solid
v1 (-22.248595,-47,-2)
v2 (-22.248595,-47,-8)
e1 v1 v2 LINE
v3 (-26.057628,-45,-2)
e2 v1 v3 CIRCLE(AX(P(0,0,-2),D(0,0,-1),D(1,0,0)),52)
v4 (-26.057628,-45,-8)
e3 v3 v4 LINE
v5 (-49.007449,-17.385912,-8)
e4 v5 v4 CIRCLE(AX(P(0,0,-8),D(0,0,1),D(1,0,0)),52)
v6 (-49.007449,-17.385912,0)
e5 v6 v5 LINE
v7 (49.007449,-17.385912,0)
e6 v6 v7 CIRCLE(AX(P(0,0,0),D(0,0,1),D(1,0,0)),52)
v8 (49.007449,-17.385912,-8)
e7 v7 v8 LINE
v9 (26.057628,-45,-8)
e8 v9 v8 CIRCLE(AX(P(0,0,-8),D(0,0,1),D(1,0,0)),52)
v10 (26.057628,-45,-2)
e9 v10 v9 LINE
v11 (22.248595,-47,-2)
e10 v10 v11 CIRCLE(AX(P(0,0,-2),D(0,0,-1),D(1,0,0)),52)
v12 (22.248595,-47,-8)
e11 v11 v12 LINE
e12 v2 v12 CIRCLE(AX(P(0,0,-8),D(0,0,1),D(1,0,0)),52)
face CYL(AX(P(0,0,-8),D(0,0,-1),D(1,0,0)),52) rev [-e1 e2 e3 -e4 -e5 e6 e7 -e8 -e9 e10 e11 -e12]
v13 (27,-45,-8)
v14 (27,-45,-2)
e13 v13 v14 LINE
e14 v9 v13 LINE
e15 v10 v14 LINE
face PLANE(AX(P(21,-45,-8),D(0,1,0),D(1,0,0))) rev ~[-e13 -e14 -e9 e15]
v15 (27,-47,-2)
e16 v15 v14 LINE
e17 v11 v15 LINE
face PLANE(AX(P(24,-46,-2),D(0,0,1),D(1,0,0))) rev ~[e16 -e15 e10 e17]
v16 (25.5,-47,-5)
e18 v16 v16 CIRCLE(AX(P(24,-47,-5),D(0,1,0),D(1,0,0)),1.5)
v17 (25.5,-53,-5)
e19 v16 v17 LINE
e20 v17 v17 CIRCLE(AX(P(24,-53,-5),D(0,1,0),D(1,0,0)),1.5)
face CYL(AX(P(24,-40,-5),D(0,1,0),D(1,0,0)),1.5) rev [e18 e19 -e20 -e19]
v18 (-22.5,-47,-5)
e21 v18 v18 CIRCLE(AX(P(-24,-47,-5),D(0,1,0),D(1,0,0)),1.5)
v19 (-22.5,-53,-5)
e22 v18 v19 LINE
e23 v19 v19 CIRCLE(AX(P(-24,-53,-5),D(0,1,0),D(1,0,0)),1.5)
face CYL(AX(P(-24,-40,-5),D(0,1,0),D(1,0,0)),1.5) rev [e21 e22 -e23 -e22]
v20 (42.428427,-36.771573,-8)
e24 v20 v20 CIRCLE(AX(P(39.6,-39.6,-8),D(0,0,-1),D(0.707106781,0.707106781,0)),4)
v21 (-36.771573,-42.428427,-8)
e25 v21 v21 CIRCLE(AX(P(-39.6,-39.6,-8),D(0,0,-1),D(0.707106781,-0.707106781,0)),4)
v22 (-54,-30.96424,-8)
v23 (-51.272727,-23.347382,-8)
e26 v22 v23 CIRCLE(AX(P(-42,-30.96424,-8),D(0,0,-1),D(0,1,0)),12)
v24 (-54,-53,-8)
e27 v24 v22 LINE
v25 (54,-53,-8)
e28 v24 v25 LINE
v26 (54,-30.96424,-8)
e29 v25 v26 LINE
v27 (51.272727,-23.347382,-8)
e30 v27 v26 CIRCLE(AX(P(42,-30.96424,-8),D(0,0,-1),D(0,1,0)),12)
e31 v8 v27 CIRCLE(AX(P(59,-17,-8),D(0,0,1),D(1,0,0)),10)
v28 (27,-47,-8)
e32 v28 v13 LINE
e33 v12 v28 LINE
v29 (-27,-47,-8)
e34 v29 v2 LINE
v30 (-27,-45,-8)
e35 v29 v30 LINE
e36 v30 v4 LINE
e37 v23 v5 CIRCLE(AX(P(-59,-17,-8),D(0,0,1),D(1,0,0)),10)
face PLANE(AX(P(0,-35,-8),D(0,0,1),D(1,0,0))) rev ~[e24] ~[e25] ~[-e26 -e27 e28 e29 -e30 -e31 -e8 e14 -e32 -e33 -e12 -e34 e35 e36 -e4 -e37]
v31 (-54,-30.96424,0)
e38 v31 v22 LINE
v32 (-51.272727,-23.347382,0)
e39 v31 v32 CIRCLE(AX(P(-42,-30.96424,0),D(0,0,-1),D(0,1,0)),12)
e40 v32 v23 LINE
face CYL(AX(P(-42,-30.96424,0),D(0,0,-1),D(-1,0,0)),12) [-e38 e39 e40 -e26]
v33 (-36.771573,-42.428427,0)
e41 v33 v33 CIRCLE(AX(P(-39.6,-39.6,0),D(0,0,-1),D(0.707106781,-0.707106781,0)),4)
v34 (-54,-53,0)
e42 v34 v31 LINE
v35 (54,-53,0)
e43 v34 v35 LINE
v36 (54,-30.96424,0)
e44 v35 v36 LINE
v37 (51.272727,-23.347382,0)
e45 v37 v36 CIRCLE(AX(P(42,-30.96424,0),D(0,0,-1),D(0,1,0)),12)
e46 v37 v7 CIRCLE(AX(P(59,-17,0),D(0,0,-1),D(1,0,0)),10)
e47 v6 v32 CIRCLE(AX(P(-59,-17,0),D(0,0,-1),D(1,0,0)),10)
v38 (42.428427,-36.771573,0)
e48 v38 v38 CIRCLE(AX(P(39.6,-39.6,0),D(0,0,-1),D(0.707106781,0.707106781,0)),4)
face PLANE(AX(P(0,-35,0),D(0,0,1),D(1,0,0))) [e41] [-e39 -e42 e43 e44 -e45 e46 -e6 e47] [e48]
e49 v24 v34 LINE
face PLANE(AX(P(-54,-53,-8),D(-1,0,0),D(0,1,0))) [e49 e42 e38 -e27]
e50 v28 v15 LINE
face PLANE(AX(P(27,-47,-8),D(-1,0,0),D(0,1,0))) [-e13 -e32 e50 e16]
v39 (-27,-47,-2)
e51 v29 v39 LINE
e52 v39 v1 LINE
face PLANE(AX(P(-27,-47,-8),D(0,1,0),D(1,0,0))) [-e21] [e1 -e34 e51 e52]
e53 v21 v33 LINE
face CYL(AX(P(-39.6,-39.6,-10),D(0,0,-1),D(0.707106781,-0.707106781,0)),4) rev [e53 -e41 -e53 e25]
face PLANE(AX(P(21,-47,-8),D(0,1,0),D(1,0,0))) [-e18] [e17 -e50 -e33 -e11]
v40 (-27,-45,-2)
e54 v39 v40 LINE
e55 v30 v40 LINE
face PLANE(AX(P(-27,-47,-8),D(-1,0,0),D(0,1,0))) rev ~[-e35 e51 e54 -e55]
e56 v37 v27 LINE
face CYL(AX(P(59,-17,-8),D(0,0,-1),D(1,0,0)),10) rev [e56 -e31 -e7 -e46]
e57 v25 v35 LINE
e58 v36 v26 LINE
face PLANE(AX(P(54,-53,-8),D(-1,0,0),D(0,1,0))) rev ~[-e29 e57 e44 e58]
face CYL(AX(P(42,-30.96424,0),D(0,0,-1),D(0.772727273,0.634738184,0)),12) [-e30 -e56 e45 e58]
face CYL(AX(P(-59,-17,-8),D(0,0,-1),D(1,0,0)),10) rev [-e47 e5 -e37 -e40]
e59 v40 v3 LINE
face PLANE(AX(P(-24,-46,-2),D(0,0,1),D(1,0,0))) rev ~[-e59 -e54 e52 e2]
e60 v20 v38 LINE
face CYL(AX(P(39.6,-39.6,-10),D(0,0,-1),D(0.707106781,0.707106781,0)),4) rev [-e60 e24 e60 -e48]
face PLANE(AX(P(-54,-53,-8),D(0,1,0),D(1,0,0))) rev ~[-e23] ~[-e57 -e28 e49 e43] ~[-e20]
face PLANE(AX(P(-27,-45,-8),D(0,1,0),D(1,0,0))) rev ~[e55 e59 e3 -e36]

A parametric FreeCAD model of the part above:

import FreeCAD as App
import Part
import Sketcher
Q = App.Units.Quantity


def edges_at(feature, points):
    """Names of the edges that pass closest to the given points."""
    edges = feature.Shape.Edges
    near = lambda p: min(range(len(edges)), key=lambda i: edges[i].distToShape(Part.Vertex(*p))[0])
    return sorted({f"Edge{near(p) + 1}" for p in points})

doc = App.newDocument("Part")
body = doc.addObject("PartDesign::Body", "Body")

sketch1 = body.newObject("Sketcher::SketchObject", "Sketch")
sketch1.AttachmentSupport = (doc.getObject("XZ_Plane"), [""])
sketch1.MapMode = "FlatFace"
sketch1.AttachmentOffset = App.Placement(App.Vector(0, 0, 40), App.Rotation())
sketch1.addGeometry(Part.Circle(App.Vector(24, -5, 0), App.Vector(0, 0, 1), 1.5), False)
sketch1.addConstraint(Sketcher.Constraint("Diameter", 0, Q("3 mm")))
sketch1.addConstraint(Sketcher.Constraint("DistanceX", -1, 1, 0, 3, Q("24 mm")))
sketch1.addConstraint(Sketcher.Constraint("DistanceY", 0, 3, -1, 1, Q("5 mm")))
pad1 = body.newObject("PartDesign::Pad", "Pad")
pad1.Profile = sketch1
pad1.Length = 20
body2 = doc.addObject("PartDesign::Body", "Body001")

sketch2 = body2.newObject("Sketcher::SketchObject", "Sketch001")
sketch2.AttachmentSupport = (doc.getObject("XZ_Plane001"), [""])
sketch2.MapMode = "FlatFace"
sketch2.AttachmentOffset = App.Placement(App.Vector(0, 0, 40), App.Rotation())
sketch2.addGeometry(Part.Circle(App.Vector(51, 7, 0), App.Vector(0, 0, 1), 1.5), False)
sketch2.addConstraint(Sketcher.Constraint("Diameter", 0, Q("3 mm")))
sketch2.addConstraint(Sketcher.Constraint("DistanceX", -1, 1, 0, 3, Q("51 mm")))
sketch2.addConstraint(Sketcher.Constraint("DistanceY", -1, 1, 0, 3, Q("7 mm")))
pad2 = body2.newObject("PartDesign::Pad", "Pad001")
pad2.Profile = sketch2
pad2.Length = 20
body3 = doc.addObject("PartDesign::Body", "Body002")

sketch3 = body3.newObject("Sketcher::SketchObject", "Sketch002")
sketch3.AttachmentSupport = (doc.getObject("XZ_Plane002"), [""])
sketch3.MapMode = "FlatFace"
sketch3.AttachmentOffset = App.Placement(App.Vector(0, 0, 40), App.Rotation())
sketch3.addGeometry(Part.Circle(App.Vector(-51, 7, 0), App.Vector(0, 0, 1), 1.5), False)
sketch3.addConstraint(Sketcher.Constraint("Diameter", 0, Q("3 mm")))
sketch3.addConstraint(Sketcher.Constraint("DistanceX", 0, 3, -1, 1, Q("51 mm")))
sketch3.addConstraint(Sketcher.Constraint("DistanceY", -1, 1, 0, 3, Q("7 mm")))
pad3 = body3.newObject("PartDesign::Pad", "Pad002")
pad3.Profile = sketch3
pad3.Length = 20
body4 = doc.addObject("PartDesign::Body", "Body003")
body4.AllowCompound = True

sketch4 = body4.newObject("Sketcher::SketchObject", "Sketch003")
sketch4.AttachmentSupport = (doc.getObject("XZ_Plane003"), [""])
sketch4.MapMode = "FlatFace"
sketch4.AttachmentOffset = App.Placement(App.Vector(0, 0, 40), App.Rotation())
sketch4.addGeometry(Part.Circle(App.Vector(-24, -5, 0), App.Vector(0, 0, 1), 1.5), False)
sketch4.addConstraint(Sketcher.Constraint("Diameter", 0, Q("3 mm")))
sketch4.addConstraint(Sketcher.Constraint("DistanceX", 0, 3, -1, 1, Q("24 mm")))
sketch4.addConstraint(Sketcher.Constraint("DistanceY", 0, 3, -1, 1, Q("5 mm")))
pad4 = body4.newObject("PartDesign::Pad", "Pad003")
pad4.Profile = sketch4
pad4.Length = 20
doc.recompute()

boolean = body4.newObject("PartDesign::Boolean", "Boolean")
boolean.Type = "Fuse"
boolean.addObjects([body])
doc.recompute()

boolean2 = body4.newObject("PartDesign::Boolean", "Boolean001")
boolean2.Type = "Fuse"
boolean2.addObjects([body2])
doc.recompute()

boolean3 = body4.newObject("PartDesign::Boolean", "Boolean002")
boolean3.Type = "Fuse"
boolean3.addObjects([body3])
body5 = doc.addObject("PartDesign::Body", "Body004")

sketch5 = body5.newObject("Sketcher::SketchObject", "Sketch004")
sketch5.AttachmentSupport = (doc.getObject("XY_Plane004"), [""])
sketch5.MapMode = "FlatFace"
sketch5.AttachmentOffset = App.Placement(App.Vector(0, 0, -8), App.Rotation())
sketch5.addGeometry(Part.LineSegment(App.Vector(21, -45, 0), App.Vector(21, -47, 0)), False)
sketch5.addGeometry(Part.LineSegment(App.Vector(21, -47, 0), App.Vector(27, -47, 0)), False)
sketch5.addGeometry(Part.LineSegment(App.Vector(27, -47, 0), App.Vector(27, -45, 0)), False)
sketch5.addGeometry(Part.LineSegment(App.Vector(27, -45, 0), App.Vector(21, -45, 0)), False)
sketch5.addConstraint(Sketcher.Constraint("Coincident", 0, 2, 1, 1))
sketch5.addConstraint(Sketcher.Constraint("Coincident", 1, 2, 2, 1))
sketch5.addConstraint(Sketcher.Constraint("Coincident", 2, 2, 3, 1))
sketch5.addConstraint(Sketcher.Constraint("Coincident", 3, 2, 0, 1))
sketch5.addConstraint(Sketcher.Constraint("Vertical", 0))
sketch5.addConstraint(Sketcher.Constraint("Horizontal", 1))
sketch5.addConstraint(Sketcher.Constraint("Vertical", 2))
sketch5.addConstraint(Sketcher.Constraint("Horizontal", 3))
sketch5.addConstraint(Sketcher.Constraint("DistanceX", 1, 1, 1, 2, Q("6 mm")))
sketch5.addConstraint(Sketcher.Constraint("DistanceY", 0, 2, 0, 1, Q("2 mm")))
sketch5.addConstraint(Sketcher.Constraint("DistanceX", -1, 1, 0, 2, Q("21 mm")))
sketch5.addConstraint(Sketcher.Constraint("DistanceY", 0, 2, -1, 1, Q("47 mm")))
pad5 = body5.newObject("PartDesign::Pad", "Pad004")
pad5.Profile = sketch5
pad5.Length = 6
body6 = doc.addObject("PartDesign::Body", "Body005")

sketch6 = body6.newObject("Sketcher::SketchObject", "Sketch005")
sketch6.AttachmentSupport = (doc.getObject("XY_Plane005"), [""])
sketch6.MapMode = "FlatFace"
sketch6.AttachmentOffset = App.Placement(App.Vector(0, 0, 4), App.Rotation())
sketch6.addGeometry(Part.LineSegment(App.Vector(48, -43, 0), App.Vector(48, -45, 0)), False)
sketch6.addGeometry(Part.LineSegment(App.Vector(48, -45, 0), App.Vector(54, -45, 0)), False)
sketch6.addGeometry(Part.LineSegment(App.Vector(54, -45, 0), App.Vector(54, -43, 0)), False)
sketch6.addGeometry(Part.LineSegment(App.Vector(54, -43, 0), App.Vector(48, -43, 0)), False)
sketch6.addConstraint(Sketcher.Constraint("Coincident", 0, 2, 1, 1))
sketch6.addConstraint(Sketcher.Constraint("Coincident", 1, 2, 2, 1))
sketch6.addConstraint(Sketcher.Constraint("Coincident", 2, 2, 3, 1))
sketch6.addConstraint(Sketcher.Constraint("Coincident", 3, 2, 0, 1))
sketch6.addConstraint(Sketcher.Constraint("Vertical", 0))
sketch6.addConstraint(Sketcher.Constraint("Horizontal", 1))
sketch6.addConstraint(Sketcher.Constraint("Vertical", 2))
sketch6.addConstraint(Sketcher.Constraint("Horizontal", 3))
sketch6.addConstraint(Sketcher.Constraint("DistanceX", 1, 1, 1, 2, Q("6 mm")))
sketch6.addConstraint(Sketcher.Constraint("DistanceY", 0, 2, 0, 1, Q("2 mm")))
sketch6.addConstraint(Sketcher.Constraint("DistanceX", -1, 1, 0, 2, Q("48 mm")))
sketch6.addConstraint(Sketcher.Constraint("DistanceY", 0, 2, -1, 1, Q("45 mm")))
pad6 = body6.newObject("PartDesign::Pad", "Pad005")
pad6.Profile = sketch6
pad6.Length = 6
body7 = doc.addObject("PartDesign::Body", "Body006")

sketch7 = body7.newObject("Sketcher::SketchObject", "Sketch006")
sketch7.AttachmentSupport = (doc.getObject("XY_Plane006"), [""])
sketch7.MapMode = "FlatFace"
sketch7.AttachmentOffset = App.Placement(App.Vector(0, 0, 4), App.Rotation())
sketch7.addGeometry(Part.LineSegment(App.Vector(-54, -43, 0), App.Vector(-54, -45, 0)), False)
sketch7.addGeometry(Part.LineSegment(App.Vector(-54, -45, 0), App.Vector(-48, -45, 0)), False)
sketch7.addGeometry(Part.LineSegment(App.Vector(-48, -45, 0), App.Vector(-48, -43, 0)), False)
sketch7.addGeometry(Part.LineSegment(App.Vector(-48, -43, 0), App.Vector(-54, -43, 0)), False)
sketch7.addConstraint(Sketcher.Constraint("Coincident", 0, 2, 1, 1))
sketch7.addConstraint(Sketcher.Constraint("Coincident", 1, 2, 2, 1))
sketch7.addConstraint(Sketcher.Constraint("Coincident", 2, 2, 3, 1))
sketch7.addConstraint(Sketcher.Constraint("Coincident", 3, 2, 0, 1))
sketch7.addConstraint(Sketcher.Constraint("Vertical", 0))
sketch7.addConstraint(Sketcher.Constraint("Horizontal", 1))
sketch7.addConstraint(Sketcher.Constraint("Vertical", 2))
sketch7.addConstraint(Sketcher.Constraint("Horizontal", 3))
sketch7.addConstraint(Sketcher.Constraint("DistanceX", 1, 1, 1, 2, Q("6 mm")))
sketch7.addConstraint(Sketcher.Constraint("DistanceY", 0, 2, 0, 1, Q("2 mm")))
sketch7.addConstraint(Sketcher.Constraint("DistanceX", 0, 2, -1, 1, Q("54 mm")))
sketch7.addConstraint(Sketcher.Constraint("DistanceY", 0, 2, -1, 1, Q("45 mm")))
pad7 = body7.newObject("PartDesign::Pad", "Pad006")
pad7.Profile = sketch7
pad7.Length = 6
body8 = doc.addObject("PartDesign::Body", "Body007")
body8.AllowCompound = True

sketch8 = body8.newObject("Sketcher::SketchObject", "Sketch007")
sketch8.AttachmentSupport = (doc.getObject("XY_Plane007"), [""])
sketch8.MapMode = "FlatFace"
sketch8.AttachmentOffset = App.Placement(App.Vector(0, 0, -8), App.Rotation())
sketch8.addGeometry(Part.LineSegment(App.Vector(-27, -45, 0), App.Vector(-27, -47, 0)), False)
sketch8.addGeometry(Part.LineSegment(App.Vector(-27, -47, 0), App.Vector(-21, -47, 0)), False)
sketch8.addGeometry(Part.LineSegment(App.Vector(-21, -47, 0), App.Vector(-21, -45, 0)), False)
sketch8.addGeometry(Part.LineSegment(App.Vector(-21, -45, 0), App.Vector(-27, -45, 0)), False)
sketch8.addConstraint(Sketcher.Constraint("Coincident", 0, 2, 1, 1))
sketch8.addConstraint(Sketcher.Constraint("Coincident", 1, 2, 2, 1))
sketch8.addConstraint(Sketcher.Constraint("Coincident", 2, 2, 3, 1))
sketch8.addConstraint(Sketcher.Constraint("Coincident", 3, 2, 0, 1))
sketch8.addConstraint(Sketcher.Constraint("Vertical", 0))
sketch8.addConstraint(Sketcher.Constraint("Horizontal", 1))
sketch8.addConstraint(Sketcher.Constraint("Vertical", 2))
sketch8.addConstraint(Sketcher.Constraint("Horizontal", 3))
sketch8.addConstraint(Sketcher.Constraint("DistanceX", 1, 1, 1, 2, Q("6 mm")))
sketch8.addConstraint(Sketcher.Constraint("DistanceY", 0, 2, 0, 1, Q("2 mm")))
sketch8.addConstraint(Sketcher.Constraint("DistanceX", 0, 2, -1, 1, Q("27 mm")))
sketch8.addConstraint(Sketcher.Constraint("DistanceY", 0, 2, -1, 1, Q("47 mm")))
pad8 = body8.newObject("PartDesign::Pad", "Pad007")
pad8.Profile = sketch8
pad8.Length = 6
doc.recompute()

boolean4 = body8.newObject("PartDesign::Boolean", "Boolean003")
boolean4.Type = "Fuse"
boolean4.addObjects([body5])
doc.recompute()

boolean5 = body8.newObject("PartDesign::Boolean", "Boolean004")
boolean5.Type = "Fuse"
boolean5.addObjects([body6])
doc.recompute()

boolean6 = body8.newObject("PartDesign::Boolean", "Boolean005")
boolean6.Type = "Fuse"
boolean6.addObjects([body7])
body9 = doc.addObject("PartDesign::Body", "Body008")

sketch9 = body9.newObject("Sketcher::SketchObject", "Sketch008")
sketch9.AttachmentSupport = (doc.getObject("XY_Plane008"), [""])
sketch9.MapMode = "FlatFace"
sketch9.addGeometry(Part.Circle(App.Vector(0, 0, 0), App.Vector(0, 0, 1), 4), False)
sketch9.addConstraint(Sketcher.Constraint("Coincident", 0, 3, -1, 1))
sketch9.addConstraint(Sketcher.Constraint("Diameter", 0, Q("8 mm")))
pad9 = body9.newObject("PartDesign::Pad", "Pad008")
pad9.Profile = sketch9
pad9.Length = 20
body10 = doc.addObject("PartDesign::Body", "Body009")
doc.recompute()

body9.Placement = App.Placement(App.Vector(39.6, -39.6, -10), App.Rotation(App.Vector(0, 0, 1), 45))
boolean7 = body10.newObject("PartDesign::Boolean", "Boolean006")
boolean7.Type = "Fuse"
boolean7.addObjects([body9])
body11 = doc.addObject("PartDesign::Body", "Body010")

sketch10 = body11.newObject("Sketcher::SketchObject", "Sketch009")
sketch10.AttachmentSupport = (doc.getObject("XY_Plane010"), [""])
sketch10.MapMode = "FlatFace"
sketch10.addGeometry(Part.Circle(App.Vector(0, 0, 0), App.Vector(0, 0, 1), 4), False)
sketch10.addConstraint(Sketcher.Constraint("Coincident", 0, 3, -1, 1))
sketch10.addConstraint(Sketcher.Constraint("Diameter", 0, Q("8 mm")))
pad10 = body11.newObject("PartDesign::Pad", "Pad009")
pad10.Profile = sketch10
pad10.Length = 20
body12 = doc.addObject("PartDesign::Body", "Body011")
body12.AllowCompound = True
doc.recompute()

body11.Placement = App.Placement(App.Vector(-39.6, -39.6, -10), App.Rotation(App.Vector(0, 0, -1), 45))
boolean8 = body12.newObject("PartDesign::Boolean", "Boolean007")
boolean8.Type = "Fuse"
boolean8.addObjects([body11])
doc.recompute()

boolean9 = body12.newObject("PartDesign::Boolean", "Boolean008")
boolean9.Type = "Fuse"
boolean9.addObjects([body10])
body13 = doc.addObject("PartDesign::Body", "Body012")

sketch11 = body13.newObject("Sketcher::SketchObject", "Sketch010")
sketch11.AttachmentSupport = (doc.getObject("XY_Plane012"), [""])
sketch11.MapMode = "FlatFace"
sketch11.addGeometry(Part.Circle(App.Vector(-59, -17, 0), App.Vector(0, 0, 1), 10), False)
sketch11.addConstraint(Sketcher.Constraint("Diameter", 0, Q("20 mm")))
sketch11.addConstraint(Sketcher.Constraint("DistanceX", 0, 3, -1, 1, Q("59 mm")))
sketch11.addConstraint(Sketcher.Constraint("DistanceY", 0, 3, -1, 1, Q("17 mm")))
pad11 = body13.newObject("PartDesign::Pad", "Pad010")
pad11.Profile = sketch11
pad11.Length = 40
body14 = doc.addObject("PartDesign::Body", "Body013")
body14.AllowCompound = True

sketch12 = body14.newObject("Sketcher::SketchObject", "Sketch011")
sketch12.AttachmentSupport = (doc.getObject("XY_Plane013"), [""])
sketch12.MapMode = "FlatFace"
sketch12.addGeometry(Part.Circle(App.Vector(59, -17, 0), App.Vector(0, 0, 1), 10), False)
sketch12.addConstraint(Sketcher.Constraint("Diameter", 0, Q("20 mm")))
sketch12.addConstraint(Sketcher.Constraint("DistanceX", -1, 1, 0, 3, Q("59 mm")))
sketch12.addConstraint(Sketcher.Constraint("DistanceY", 0, 3, -1, 1, Q("17 mm")))
pad12 = body14.newObject("PartDesign::Pad", "Pad011")
pad12.Profile = sketch12
pad12.Length = 40
doc.recompute()

boolean10 = body14.newObject("PartDesign::Boolean", "Boolean009")
boolean10.Type = "Fuse"
boolean10.addObjects([body13])
body15 = doc.addObject("PartDesign::Body", "Body014")

sketch13 = body15.newObject("Sketcher::SketchObject", "Sketch012")
sketch13.AttachmentSupport = (doc.getObject("XY_Plane014"), [""])
sketch13.MapMode = "FlatFace"
sketch13.AttachmentOffset = App.Placement(App.Vector(0, 0, 20), App.Rotation())
sketch13.addGeometry(Part.Circle(App.Vector(0, 0, 0), App.Vector(0, 0, 1), 52), False)
sketch13.addConstraint(Sketcher.Constraint("Coincident", 0, 3, -1, 1))
sketch13.addConstraint(Sketcher.Constraint("Diameter", 0, Q("104 mm")))
pad13 = body15.newObject("PartDesign::Pad", "Pad012")
pad13.Profile = sketch13
pad13.Length = 8
body16 = doc.addObject("PartDesign::Body", "Body015")

sketch14 = body16.newObject("Sketcher::SketchObject", "Sketch013")
sketch14.AttachmentSupport = (doc.getObject("XY_Plane015"), [""])
sketch14.MapMode = "FlatFace"
sketch14.AttachmentOffset = App.Placement(App.Vector(0, 0, 20), App.Rotation())
sketch14.addGeometry(Part.LineSegment(App.Vector(-54, -17, 0), App.Vector(-54, -53, 0)), False)
sketch14.addGeometry(Part.LineSegment(App.Vector(-54, -53, 0), App.Vector(54, -53, 0)), False)
sketch14.addGeometry(Part.LineSegment(App.Vector(54, -53, 0), App.Vector(54, -17, 0)), False)
sketch14.addGeometry(Part.LineSegment(App.Vector(54, -17, 0), App.Vector(-54, -17, 0)), False)
sketch14.addConstraint(Sketcher.Constraint("Coincident", 0, 2, 1, 1))
sketch14.addConstraint(Sketcher.Constraint("Coincident", 1, 2, 2, 1))
sketch14.addConstraint(Sketcher.Constraint("Coincident", 2, 2, 3, 1))
sketch14.addConstraint(Sketcher.Constraint("Coincident", 3, 2, 0, 1))
sketch14.addConstraint(Sketcher.Constraint("Vertical", 0))
sketch14.addConstraint(Sketcher.Constraint("Horizontal", 1))
sketch14.addConstraint(Sketcher.Constraint("Vertical", 2))
sketch14.addConstraint(Sketcher.Constraint("Horizontal", 3))
sketch14.addConstraint(Sketcher.Constraint("DistanceX", 1, 1, 1, 2, Q("108 mm")))
sketch14.addConstraint(Sketcher.Constraint("DistanceY", 0, 2, 0, 1, Q("36 mm")))
sketch14.addConstraint(Sketcher.Constraint("DistanceX", 0, 2, -1, 1, Q("54 mm")))
sketch14.addConstraint(Sketcher.Constraint("DistanceY", 0, 2, -1, 1, Q("53 mm")))
pad14 = body16.newObject("PartDesign::Pad", "Pad013")
pad14.Profile = sketch14
pad14.Length = 8
doc.recompute()

boolean11 = body16.newObject("PartDesign::Boolean", "Boolean010")
boolean11.Type = "Cut"
boolean11.addObjects([body15])
body17 = doc.addObject("PartDesign::Body", "Body016")
doc.recompute()

body16.Placement = App.Placement(App.Vector(0, 0, -20), App.Rotation(App.Vector(0, 0, 1), 0))
boolean12 = body17.newObject("PartDesign::Boolean", "Boolean011")
boolean12.Type = "Fuse"
boolean12.addObjects([body16])
doc.recompute()

boolean13 = body17.newObject("PartDesign::Boolean", "Boolean012")
boolean13.Type = "Cut"
boolean13.addObjects([body14])
body18 = doc.addObject("PartDesign::Body", "Body017")
doc.recompute()

body17.Placement = App.Placement(App.Vector(0, 0, -8), App.Rotation(App.Vector(0, 0, 1), 0))
boolean14 = body18.newObject("PartDesign::Boolean", "Boolean013")
boolean14.Type = "Fuse"
boolean14.addObjects([body17])
doc.recompute()

boolean15 = body18.newObject("PartDesign::Boolean", "Boolean014")
boolean15.Type = "Cut"
boolean15.addObjects([body12])
doc.recompute()

boolean16 = body18.newObject("PartDesign::Boolean", "Boolean015")
boolean16.Type = "Cut"
boolean16.addObjects([body8])
doc.recompute()

boolean17 = body18.newObject("PartDesign::Boolean", "Boolean016")
boolean17.Type = "Cut"
boolean17.addObjects([body4])
doc.recompute()

fillet = body18.newObject("PartDesign::Fillet", "Fillet")
fillet.Base = (boolean17, edges_at(boolean17, [(-54, -25.66, -4), (54, -25.66, -4)]))
fillet.Radius = 12

doc.recompute()
